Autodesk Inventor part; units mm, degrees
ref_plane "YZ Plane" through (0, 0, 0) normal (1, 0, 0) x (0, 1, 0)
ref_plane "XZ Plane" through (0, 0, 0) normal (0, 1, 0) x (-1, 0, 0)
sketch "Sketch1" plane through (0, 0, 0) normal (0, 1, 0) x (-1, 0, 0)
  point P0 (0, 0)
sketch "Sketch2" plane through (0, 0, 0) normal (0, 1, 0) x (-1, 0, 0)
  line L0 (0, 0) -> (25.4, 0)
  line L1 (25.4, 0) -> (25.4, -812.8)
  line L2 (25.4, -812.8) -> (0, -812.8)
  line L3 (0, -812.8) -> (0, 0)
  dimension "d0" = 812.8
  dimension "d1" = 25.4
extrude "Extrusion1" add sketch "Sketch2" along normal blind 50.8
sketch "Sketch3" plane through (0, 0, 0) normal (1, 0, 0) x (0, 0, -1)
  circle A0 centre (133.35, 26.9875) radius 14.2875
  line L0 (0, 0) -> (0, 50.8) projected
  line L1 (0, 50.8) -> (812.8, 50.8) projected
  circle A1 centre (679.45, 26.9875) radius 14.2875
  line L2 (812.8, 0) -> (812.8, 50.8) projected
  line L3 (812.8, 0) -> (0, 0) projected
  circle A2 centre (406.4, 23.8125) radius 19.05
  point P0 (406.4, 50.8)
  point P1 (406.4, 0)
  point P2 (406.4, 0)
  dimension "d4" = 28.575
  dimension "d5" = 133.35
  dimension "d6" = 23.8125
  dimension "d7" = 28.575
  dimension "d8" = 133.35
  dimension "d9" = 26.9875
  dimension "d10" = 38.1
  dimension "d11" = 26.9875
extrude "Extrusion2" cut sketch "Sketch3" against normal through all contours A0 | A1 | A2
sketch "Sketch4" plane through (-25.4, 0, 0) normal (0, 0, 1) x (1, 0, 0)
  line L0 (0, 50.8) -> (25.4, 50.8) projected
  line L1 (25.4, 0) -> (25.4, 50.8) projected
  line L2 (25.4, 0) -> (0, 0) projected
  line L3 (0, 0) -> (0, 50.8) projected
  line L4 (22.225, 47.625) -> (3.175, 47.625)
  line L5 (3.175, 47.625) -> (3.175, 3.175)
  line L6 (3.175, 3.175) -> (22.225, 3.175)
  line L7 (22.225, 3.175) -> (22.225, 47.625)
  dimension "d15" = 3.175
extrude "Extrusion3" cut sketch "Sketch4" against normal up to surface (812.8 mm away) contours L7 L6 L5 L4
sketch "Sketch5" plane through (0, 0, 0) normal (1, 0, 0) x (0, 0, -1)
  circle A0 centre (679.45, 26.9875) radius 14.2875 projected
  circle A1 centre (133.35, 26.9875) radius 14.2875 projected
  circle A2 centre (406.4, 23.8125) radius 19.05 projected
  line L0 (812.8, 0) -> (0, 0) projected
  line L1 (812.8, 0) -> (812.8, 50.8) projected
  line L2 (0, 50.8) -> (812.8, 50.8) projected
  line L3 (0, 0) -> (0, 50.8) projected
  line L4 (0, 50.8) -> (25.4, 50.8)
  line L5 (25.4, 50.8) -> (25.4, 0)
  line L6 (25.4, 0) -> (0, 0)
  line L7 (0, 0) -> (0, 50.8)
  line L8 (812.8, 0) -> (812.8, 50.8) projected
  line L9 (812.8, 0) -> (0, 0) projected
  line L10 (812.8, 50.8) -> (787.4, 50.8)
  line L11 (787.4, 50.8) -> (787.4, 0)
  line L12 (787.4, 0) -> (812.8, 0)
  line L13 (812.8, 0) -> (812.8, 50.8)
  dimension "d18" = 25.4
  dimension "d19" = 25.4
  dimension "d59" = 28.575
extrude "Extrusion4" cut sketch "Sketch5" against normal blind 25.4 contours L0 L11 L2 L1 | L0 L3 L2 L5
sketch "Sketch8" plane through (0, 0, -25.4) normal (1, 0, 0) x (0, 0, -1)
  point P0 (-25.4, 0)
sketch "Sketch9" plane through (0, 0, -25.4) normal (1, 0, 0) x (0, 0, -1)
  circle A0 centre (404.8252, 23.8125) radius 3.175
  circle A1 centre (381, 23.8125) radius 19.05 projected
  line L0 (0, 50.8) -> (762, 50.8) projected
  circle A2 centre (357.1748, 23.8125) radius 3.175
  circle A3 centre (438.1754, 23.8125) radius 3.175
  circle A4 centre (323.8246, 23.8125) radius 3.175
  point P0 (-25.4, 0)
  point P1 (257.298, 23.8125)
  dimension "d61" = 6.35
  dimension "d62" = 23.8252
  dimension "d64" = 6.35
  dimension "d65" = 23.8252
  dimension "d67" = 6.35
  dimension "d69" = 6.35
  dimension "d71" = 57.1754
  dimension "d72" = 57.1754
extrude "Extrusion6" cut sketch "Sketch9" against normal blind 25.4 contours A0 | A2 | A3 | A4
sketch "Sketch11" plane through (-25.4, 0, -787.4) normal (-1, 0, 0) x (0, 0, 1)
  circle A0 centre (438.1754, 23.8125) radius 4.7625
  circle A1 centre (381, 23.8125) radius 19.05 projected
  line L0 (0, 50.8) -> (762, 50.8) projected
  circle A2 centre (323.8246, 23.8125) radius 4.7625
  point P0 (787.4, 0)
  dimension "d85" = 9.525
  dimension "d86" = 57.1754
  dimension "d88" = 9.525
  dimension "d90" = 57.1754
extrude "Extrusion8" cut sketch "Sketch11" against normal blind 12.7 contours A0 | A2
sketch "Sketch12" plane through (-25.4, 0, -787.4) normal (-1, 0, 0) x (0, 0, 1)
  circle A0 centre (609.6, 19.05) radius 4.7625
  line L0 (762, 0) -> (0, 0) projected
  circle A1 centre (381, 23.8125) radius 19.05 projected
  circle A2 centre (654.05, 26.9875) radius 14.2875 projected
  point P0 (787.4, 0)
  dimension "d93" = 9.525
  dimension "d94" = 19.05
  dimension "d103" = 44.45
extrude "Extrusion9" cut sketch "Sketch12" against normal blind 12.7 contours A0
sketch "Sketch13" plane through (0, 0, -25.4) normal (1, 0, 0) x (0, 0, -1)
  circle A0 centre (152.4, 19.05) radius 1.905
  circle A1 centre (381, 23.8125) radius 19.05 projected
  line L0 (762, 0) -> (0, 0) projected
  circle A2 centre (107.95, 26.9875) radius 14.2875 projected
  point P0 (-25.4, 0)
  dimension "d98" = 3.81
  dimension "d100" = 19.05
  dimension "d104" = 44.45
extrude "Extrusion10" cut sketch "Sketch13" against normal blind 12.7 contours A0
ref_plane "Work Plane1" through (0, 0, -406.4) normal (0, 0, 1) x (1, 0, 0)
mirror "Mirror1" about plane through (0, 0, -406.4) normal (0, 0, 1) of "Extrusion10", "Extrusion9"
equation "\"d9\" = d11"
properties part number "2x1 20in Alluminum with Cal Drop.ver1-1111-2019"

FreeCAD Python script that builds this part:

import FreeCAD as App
import Part
import Sketcher
Q = App.Units.Quantity

doc = App.newDocument("Part")
params = doc.addObject("Spreadsheet::Sheet", "Params")
for row, (alias, value) in enumerate([
    ("sketch1_width", "1 in"),
    ("sketch1_height", "32 in"),
    ("pad1_length", "2 in"),
    ("sketch2_diameter", "1.5 in"),
    ("sketch2_diameter2", "1.125 in"),
    ("sketch3_width", "0.75 in"),
    ("sketch3_height", "1.75 in"),
    ("pocket2_length", "32 in"),
    ("sketch4_height", "1 in"),
    ("sketch4_width", "2 in"),
    ("pocket3_length", "1 in"),
    ("sketch5_diameter", "0.25 in"),
    ("pocket4_length", "1 in"),
    ("sketch6_diameter", "0.375 in"),
    ("pocket5_length", "0.5 in"),
    ("sketch7_diameter", "0.375 in"),
    ("pocket6_length", "0.5 in"),
    ("sketch8_diameter", "0.15 in"),
    ("pocket7_length", "0.5 in"),
], start=1):
    params.set(f"A{row}", alias)
    params.set(f"B{row}", "=" + value)
    params.setAlias(f"B{row}", alias)

body = doc.addObject("PartDesign::Body", "Body")

sketch1 = doc.addObject("Sketcher::SketchObject", "Sketch")
body.addObject(sketch1)
sketch1.AttachmentSupport = (doc.XZ_Plane, [""])
sketch1.MapMode = "FlatFace"
sketch1.addGeometry(Part.LineSegment(App.Vector(-25.4, 0, 0), App.Vector(0, 0, 0)), False)
sketch1.addGeometry(Part.LineSegment(App.Vector(0, 0, 0), App.Vector(0, -812.8, 0)), False)
sketch1.addGeometry(Part.LineSegment(App.Vector(0, -812.8, 0), App.Vector(-25.4, -812.8, 0)), False)
sketch1.addGeometry(Part.LineSegment(App.Vector(-25.4, -812.8, 0), App.Vector(-25.4, 0, 0)), False)
sketch1.addConstraint(Sketcher.Constraint("Coincident", 0, 2, 1, 1))
sketch1.addConstraint(Sketcher.Constraint("Coincident", 1, 2, 2, 1))
sketch1.addConstraint(Sketcher.Constraint("Coincident", 2, 2, 3, 1))
sketch1.addConstraint(Sketcher.Constraint("Coincident", 3, 2, 0, 1))
sketch1.addConstraint(Sketcher.Constraint("Horizontal", 0))
sketch1.addConstraint(Sketcher.Constraint("Vertical", 1))
sketch1.addConstraint(Sketcher.Constraint("Horizontal", 2))
sketch1.addConstraint(Sketcher.Constraint("Vertical", 3))
sketch1.addConstraint(Sketcher.Constraint("Coincident", 0, 2, -1, 1))
sketch1.addConstraint(Sketcher.Constraint("DistanceX", 0, 1, 0, 2, Q("1 in")))
sketch1.addConstraint(Sketcher.Constraint("DistanceY", 1, 2, 1, 1, Q("32 in")))
sketch1.setExpression("Constraints[9]", "Params.sketch1_width")
sketch1.setExpression("Constraints[10]", "Params.sketch1_height")
pad1 = doc.addObject("PartDesign::Pad", "Pad")
body.addObject(pad1)
pad1.Profile = sketch1
pad1.setExpression("Length", "Params.pad1_length")
pad1.Reversed = True

sketch2 = doc.addObject("Sketcher::SketchObject", "Sketch001")
body.addObject(sketch2)
sketch2.AttachmentSupport = (doc.YZ_Plane, [""])
sketch2.MapMode = "FlatFace"
sketch2.addGeometry(Part.Circle(App.Vector(26.9875, -133.35, 0), App.Vector(0, 0, 1), 14.2875), False)
sketch2.addGeometry(Part.Circle(App.Vector(26.9875, -679.45, 0), App.Vector(0, 0, 1), 14.2875), False)
sketch2.addGeometry(Part.Circle(App.Vector(23.8125, -406.4, 0), App.Vector(0, 0, 1), 19.05), False)
sketch2.addConstraint(Sketcher.Constraint("Equal", 0, 1))
sketch2.addConstraint(Sketcher.Constraint("Vertical", 0, 3, 1, 3))
sketch2.addConstraint(Sketcher.Constraint("Diameter", 2, Q("1.5 in")))
sketch2.addConstraint(Sketcher.Constraint("Diameter", 0, Q("1.125 in")))
sketch2.addConstraint(Sketcher.Constraint("DistanceY", 0, 3, -1, 1, Q("5.25 in")))
sketch2.addConstraint(Sketcher.Constraint("DistanceX", -1, 1, 0, 3, Q("1.0625 in")))
sketch2.addConstraint(Sketcher.Constraint("DistanceX", -1, 1, 2, 3, Q("0.9375 in")))
sketch2.addConstraint(Sketcher.Constraint("DistanceY", 2, 3, -1, 1, Q("16 in")))
sketch2.addConstraint(Sketcher.Constraint("DistanceY", 1, 3, 0, 3, Q("21.5 in")))
sketch2.setExpression("Constraints[2]", "Params.sketch2_diameter")
sketch2.setExpression("Constraints[3]", "Params.sketch2_diameter2")
pocket1 = doc.addObject("PartDesign::Pocket", "Pocket")
body.addObject(pocket1)
pocket1.Profile = sketch2
pocket1.Type = "ThroughAll"

sketch3 = doc.addObject("Sketcher::SketchObject", "Sketch002")
body.addObject(sketch3)
sketch3.AttachmentSupport = (doc.XY_Plane, [""])
sketch3.MapMode = "FlatFace"
sketch3.addGeometry(Part.LineSegment(App.Vector(-3.175, 3.175, 0), App.Vector(-3.175, 47.625, 0)), False)
sketch3.addGeometry(Part.LineSegment(App.Vector(-3.175, 47.625, 0), App.Vector(-22.225, 47.625, 0)), False)
sketch3.addGeometry(Part.LineSegment(App.Vector(-22.225, 47.625, 0), App.Vector(-22.225, 3.175, 0)), False)
sketch3.addGeometry(Part.LineSegment(App.Vector(-22.225, 3.175, 0), App.Vector(-3.175, 3.175, 0)), False)
sketch3.addConstraint(Sketcher.Constraint("Coincident", 0, 2, 1, 1))
sketch3.addConstraint(Sketcher.Constraint("Coincident", 1, 2, 2, 1))
sketch3.addConstraint(Sketcher.Constraint("Coincident", 2, 2, 3, 1))
sketch3.addConstraint(Sketcher.Constraint("Coincident", 3, 2, 0, 1))
sketch3.addConstraint(Sketcher.Constraint("Vertical", 0))
sketch3.addConstraint(Sketcher.Constraint("Horizontal", 1))
sketch3.addConstraint(Sketcher.Constraint("Vertical", 2))
sketch3.addConstraint(Sketcher.Constraint("Horizontal", 3))
sketch3.addConstraint(Sketcher.Constraint("DistanceX", 0, 2, -1, 1, Q("0.125 in")))
sketch3.addConstraint(Sketcher.Constraint("DistanceY", -1, 1, 2, 2, Q("0.125 in")))
sketch3.addConstraint(Sketcher.Constraint("DistanceX", 1, 2, 1, 1, Q("0.75 in")))
sketch3.addConstraint(Sketcher.Constraint("DistanceY", 0, 1, 0, 2, Q("1.75 in")))
sketch3.setExpression("Constraints[10]", "Params.sketch3_width")
sketch3.setExpression("Constraints[11]", "Params.sketch3_height")
pocket2 = doc.addObject("PartDesign::Pocket", "Pocket001")
body.addObject(pocket2)
pocket2.Profile = sketch3
pocket2.setExpression("Length", "Params.pocket2_length")

sketch4 = doc.addObject("Sketcher::SketchObject", "Sketch003")
body.addObject(sketch4)
sketch4.AttachmentSupport = (doc.YZ_Plane, [""])
sketch4.MapMode = "FlatFace"
sketch4.addGeometry(Part.LineSegment(App.Vector(0, -787.4, 0), App.Vector(0, -812.8, 0)), False)
sketch4.addGeometry(Part.LineSegment(App.Vector(0, -812.8, 0), App.Vector(50.8, -812.8, 0)), False)
sketch4.addGeometry(Part.LineSegment(App.Vector(50.8, -812.8, 0), App.Vector(50.8, -787.4, 0)), False)
sketch4.addGeometry(Part.LineSegment(App.Vector(50.8, -787.4, 0), App.Vector(0, -787.4, 0)), False)
sketch4.addGeometry(Part.LineSegment(App.Vector(0, 0, 0), App.Vector(0, -25.4, 0)), False)
sketch4.addGeometry(Part.LineSegment(App.Vector(0, -25.4, 0), App.Vector(50.8, -25.4, 0)), False)
sketch4.addGeometry(Part.LineSegment(App.Vector(50.8, -25.4, 0), App.Vector(50.8, 0, 0)), False)
sketch4.addGeometry(Part.LineSegment(App.Vector(50.8, 0, 0), App.Vector(0, 0, 0)), False)
sketch4.addConstraint(Sketcher.Constraint("Coincident", 0, 2, 1, 1))
sketch4.addConstraint(Sketcher.Constraint("Coincident", 1, 2, 2, 1))
sketch4.addConstraint(Sketcher.Constraint("Coincident", 2, 2, 3, 1))
sketch4.addConstraint(Sketcher.Constraint("Coincident", 3, 2, 0, 1))
sketch4.addConstraint(Sketcher.Constraint("Coincident", 4, 2, 5, 1))
sketch4.addConstraint(Sketcher.Constraint("Coincident", 5, 2, 6, 1))
sketch4.addConstraint(Sketcher.Constraint("Coincident", 6, 2, 7, 1))
sketch4.addConstraint(Sketcher.Constraint("Coincident", 7, 2, 4, 1))
sketch4.addConstraint(Sketcher.Constraint("Vertical", 0))
sketch4.addConstraint(Sketcher.Constraint("Horizontal", 1))
sketch4.addConstraint(Sketcher.Constraint("Vertical", 2))
sketch4.addConstraint(Sketcher.Constraint("Horizontal", 3))
sketch4.addConstraint(Sketcher.Constraint("Vertical", 4))
sketch4.addConstraint(Sketcher.Constraint("Horizontal", 5))
sketch4.addConstraint(Sketcher.Constraint("Vertical", 6))
sketch4.addConstraint(Sketcher.Constraint("Horizontal", 7))
sketch4.addConstraint(Sketcher.Constraint("Coincident", 7, 2, -1, 1))
sketch4.addConstraint(Sketcher.Constraint("PointOnObject", 0, 2, -2))
sketch4.addConstraint(Sketcher.Constraint("Vertical", 2, 2, 5, 2))
sketch4.addConstraint(Sketcher.Constraint("Equal", 2, 4))
sketch4.addConstraint(Sketcher.Constraint("DistanceY", 0, 2, 0, 1, Q("1 in")))
sketch4.addConstraint(Sketcher.Constraint("DistanceX", 1, 1, 1, 2, Q("2 in")))
sketch4.addConstraint(Sketcher.Constraint("DistanceY", 0, 2, -1, 1, Q("32 in")))
sketch4.setExpression("Constraints[20]", "Params.sketch4_height")
sketch4.setExpression("Constraints[21]", "Params.sketch4_width")
pocket3 = doc.addObject("PartDesign::Pocket", "Pocket002")
body.addObject(pocket3)
pocket3.Profile = sketch4
pocket3.setExpression("Length", "Params.pocket3_length")

sketch5 = doc.addObject("Sketcher::SketchObject", "Sketch004")
body.addObject(sketch5)
sketch5.AttachmentSupport = (doc.YZ_Plane, [""])
sketch5.MapMode = "FlatFace"
sketch5.addGeometry(Part.Circle(App.Vector(23.8125, -430.2252, 0), App.Vector(0, 0, 1), 3.175), False)
sketch5.addGeometry(Part.Circle(App.Vector(23.8125, -382.5748, 0), App.Vector(0, 0, 1), 3.175), False)
sketch5.addGeometry(Part.Circle(App.Vector(23.8125, -463.5754, 0), App.Vector(0, 0, 1), 3.175), False)
sketch5.addGeometry(Part.Circle(App.Vector(23.8125, -349.2246, 0), App.Vector(0, 0, 1), 3.175), False)
sketch5.addConstraint(Sketcher.Constraint("Equal", 0, 1))
sketch5.addConstraint(Sketcher.Constraint("Equal", 1, 2))
sketch5.addConstraint(Sketcher.Constraint("Equal", 2, 3))
sketch5.addConstraint(Sketcher.Constraint("Vertical", 0, 3, 1, 3))
sketch5.addConstraint(Sketcher.Constraint("Vertical", 1, 3, 2, 3))
sketch5.addConstraint(Sketcher.Constraint("Vertical", 2, 3, 3, 3))
sketch5.addConstraint(Sketcher.Constraint("Diameter", 0, Q("0.25 in")))
sketch5.addConstraint(Sketcher.Constraint("DistanceX", -1, 1, 0, 3, Q("0.9375 in")))
sketch5.addConstraint(Sketcher.Constraint("DistanceY", 0, 3, -1, 1, Q("16.938 in")))
sketch5.addConstraint(Sketcher.Constraint("DistanceY", 1, 3, -1, 1, Q("15.062 in")))
sketch5.addConstraint(Sketcher.Constraint("DistanceY", 2, 3, -1, 1, Q("18.251 in")))
sketch5.addConstraint(Sketcher.Constraint("DistanceY", 3, 3, -1, 1, Q("13.749 in")))
sketch5.setExpression("Constraints[6]", "Params.sketch5_diameter")
pocket4 = doc.addObject("PartDesign::Pocket", "Pocket003")
body.addObject(pocket4)
pocket4.Profile = sketch5
pocket4.setExpression("Length", "Params.pocket4_length")

sketch6 = doc.addObject("Sketcher::SketchObject", "Sketch005")
body.addObject(sketch6)
sketch6.AttachmentSupport = (doc.YZ_Plane, [""])
sketch6.MapMode = "FlatFace"
sketch6.AttachmentOffset = App.Placement(App.Vector(0, 0, -1 * 25.4), App.Rotation())
sketch6.addGeometry(Part.Circle(App.Vector(23.8125, -349.2246, 0), App.Vector(0, 0, 1), 4.7625), False)
sketch6.addGeometry(Part.Circle(App.Vector(23.8125, -463.5754, 0), App.Vector(0, 0, 1), 4.7625), False)
sketch6.addConstraint(Sketcher.Constraint("Equal", 0, 1))
sketch6.addConstraint(Sketcher.Constraint("Vertical", 0, 3, 1, 3))
sketch6.addConstraint(Sketcher.Constraint("Diameter", 0, Q("0.375 in")))
sketch6.addConstraint(Sketcher.Constraint("DistanceX", -1, 1, 0, 3, Q("0.9375 in")))
sketch6.addConstraint(Sketcher.Constraint("DistanceY", 0, 3, -1, 1, Q("13.749 in")))
sketch6.addConstraint(Sketcher.Constraint("DistanceY", 1, 3, -1, 1, Q("18.251 in")))
sketch6.setExpression("Constraints[2]", "Params.sketch6_diameter")
pocket5 = doc.addObject("PartDesign::Pocket", "Pocket004")
body.addObject(pocket5)
pocket5.Profile = sketch6
pocket5.setExpression("Length", "Params.pocket5_length")
pocket5.Reversed = True

sketch7 = doc.addObject("Sketcher::SketchObject", "Sketch006")
body.addObject(sketch7)
sketch7.AttachmentSupport = (doc.YZ_Plane, [""])
sketch7.MapMode = "FlatFace"
sketch7.AttachmentOffset = App.Placement(App.Vector(0, 0, -1 * 25.4), App.Rotation())
sketch7.addGeometry(Part.Circle(App.Vector(19.05, -177.8, 0), App.Vector(0, 0, 1), 4.7625), False)
sketch7.addConstraint(Sketcher.Constraint("Diameter", 0, Q("0.375 in")))
sketch7.addConstraint(Sketcher.Constraint("DistanceX", -1, 1, 0, 3, Q("0.75 in")))
sketch7.addConstraint(Sketcher.Constraint("DistanceY", 0, 3, -1, 1, Q("7 in")))
sketch7.setExpression("Constraints[0]", "Params.sketch7_diameter")
pocket6 = doc.addObject("PartDesign::Pocket", "Pocket005")
body.addObject(pocket6)
pocket6.Profile = sketch7
pocket6.setExpression("Length", "Params.pocket6_length")
pocket6.Reversed = True

sketch8 = doc.addObject("Sketcher::SketchObject", "Sketch007")
body.addObject(sketch8)
sketch8.AttachmentSupport = (doc.YZ_Plane, [""])
sketch8.MapMode = "FlatFace"
sketch8.addGeometry(Part.Circle(App.Vector(19.05, -177.8, 0), App.Vector(0, 0, 1), 1.905), False)
sketch8.addConstraint(Sketcher.Constraint("Diameter", 0, Q("0.15 in")))
sketch8.addConstraint(Sketcher.Constraint("DistanceX", -1, 1, 0, 3, Q("0.75 in")))
sketch8.addConstraint(Sketcher.Constraint("DistanceY", 0, 3, -1, 1, Q("7 in")))
sketch8.setExpression("Constraints[0]", "Params.sketch8_diameter")
pocket7 = doc.addObject("PartDesign::Pocket", "Pocket006")
body.addObject(pocket7)
pocket7.Profile = sketch8
pocket7.setExpression("Length", "Params.pocket7_length")
doc.recompute()

datumplane = doc.addObject("PartDesign::Plane", "DatumPlane")
body.addObject(datumplane)
datumplane.AttachmentSupport = (doc.XY_Plane, [""])
datumplane.MapMode = "FlatFace"
datumplane.AttachmentOffset = App.Placement(App.Vector(0, 0, -16 * 25.4), App.Rotation())
mirrored = doc.addObject("PartDesign::Mirrored", "Mirrored")
body.addObject(mirrored)
mirrored.Originals = [pocket7, pocket6]
mirrored.MirrorPlane = (datumplane, [""])
body.Tip = mirrored

doc.recompute()
